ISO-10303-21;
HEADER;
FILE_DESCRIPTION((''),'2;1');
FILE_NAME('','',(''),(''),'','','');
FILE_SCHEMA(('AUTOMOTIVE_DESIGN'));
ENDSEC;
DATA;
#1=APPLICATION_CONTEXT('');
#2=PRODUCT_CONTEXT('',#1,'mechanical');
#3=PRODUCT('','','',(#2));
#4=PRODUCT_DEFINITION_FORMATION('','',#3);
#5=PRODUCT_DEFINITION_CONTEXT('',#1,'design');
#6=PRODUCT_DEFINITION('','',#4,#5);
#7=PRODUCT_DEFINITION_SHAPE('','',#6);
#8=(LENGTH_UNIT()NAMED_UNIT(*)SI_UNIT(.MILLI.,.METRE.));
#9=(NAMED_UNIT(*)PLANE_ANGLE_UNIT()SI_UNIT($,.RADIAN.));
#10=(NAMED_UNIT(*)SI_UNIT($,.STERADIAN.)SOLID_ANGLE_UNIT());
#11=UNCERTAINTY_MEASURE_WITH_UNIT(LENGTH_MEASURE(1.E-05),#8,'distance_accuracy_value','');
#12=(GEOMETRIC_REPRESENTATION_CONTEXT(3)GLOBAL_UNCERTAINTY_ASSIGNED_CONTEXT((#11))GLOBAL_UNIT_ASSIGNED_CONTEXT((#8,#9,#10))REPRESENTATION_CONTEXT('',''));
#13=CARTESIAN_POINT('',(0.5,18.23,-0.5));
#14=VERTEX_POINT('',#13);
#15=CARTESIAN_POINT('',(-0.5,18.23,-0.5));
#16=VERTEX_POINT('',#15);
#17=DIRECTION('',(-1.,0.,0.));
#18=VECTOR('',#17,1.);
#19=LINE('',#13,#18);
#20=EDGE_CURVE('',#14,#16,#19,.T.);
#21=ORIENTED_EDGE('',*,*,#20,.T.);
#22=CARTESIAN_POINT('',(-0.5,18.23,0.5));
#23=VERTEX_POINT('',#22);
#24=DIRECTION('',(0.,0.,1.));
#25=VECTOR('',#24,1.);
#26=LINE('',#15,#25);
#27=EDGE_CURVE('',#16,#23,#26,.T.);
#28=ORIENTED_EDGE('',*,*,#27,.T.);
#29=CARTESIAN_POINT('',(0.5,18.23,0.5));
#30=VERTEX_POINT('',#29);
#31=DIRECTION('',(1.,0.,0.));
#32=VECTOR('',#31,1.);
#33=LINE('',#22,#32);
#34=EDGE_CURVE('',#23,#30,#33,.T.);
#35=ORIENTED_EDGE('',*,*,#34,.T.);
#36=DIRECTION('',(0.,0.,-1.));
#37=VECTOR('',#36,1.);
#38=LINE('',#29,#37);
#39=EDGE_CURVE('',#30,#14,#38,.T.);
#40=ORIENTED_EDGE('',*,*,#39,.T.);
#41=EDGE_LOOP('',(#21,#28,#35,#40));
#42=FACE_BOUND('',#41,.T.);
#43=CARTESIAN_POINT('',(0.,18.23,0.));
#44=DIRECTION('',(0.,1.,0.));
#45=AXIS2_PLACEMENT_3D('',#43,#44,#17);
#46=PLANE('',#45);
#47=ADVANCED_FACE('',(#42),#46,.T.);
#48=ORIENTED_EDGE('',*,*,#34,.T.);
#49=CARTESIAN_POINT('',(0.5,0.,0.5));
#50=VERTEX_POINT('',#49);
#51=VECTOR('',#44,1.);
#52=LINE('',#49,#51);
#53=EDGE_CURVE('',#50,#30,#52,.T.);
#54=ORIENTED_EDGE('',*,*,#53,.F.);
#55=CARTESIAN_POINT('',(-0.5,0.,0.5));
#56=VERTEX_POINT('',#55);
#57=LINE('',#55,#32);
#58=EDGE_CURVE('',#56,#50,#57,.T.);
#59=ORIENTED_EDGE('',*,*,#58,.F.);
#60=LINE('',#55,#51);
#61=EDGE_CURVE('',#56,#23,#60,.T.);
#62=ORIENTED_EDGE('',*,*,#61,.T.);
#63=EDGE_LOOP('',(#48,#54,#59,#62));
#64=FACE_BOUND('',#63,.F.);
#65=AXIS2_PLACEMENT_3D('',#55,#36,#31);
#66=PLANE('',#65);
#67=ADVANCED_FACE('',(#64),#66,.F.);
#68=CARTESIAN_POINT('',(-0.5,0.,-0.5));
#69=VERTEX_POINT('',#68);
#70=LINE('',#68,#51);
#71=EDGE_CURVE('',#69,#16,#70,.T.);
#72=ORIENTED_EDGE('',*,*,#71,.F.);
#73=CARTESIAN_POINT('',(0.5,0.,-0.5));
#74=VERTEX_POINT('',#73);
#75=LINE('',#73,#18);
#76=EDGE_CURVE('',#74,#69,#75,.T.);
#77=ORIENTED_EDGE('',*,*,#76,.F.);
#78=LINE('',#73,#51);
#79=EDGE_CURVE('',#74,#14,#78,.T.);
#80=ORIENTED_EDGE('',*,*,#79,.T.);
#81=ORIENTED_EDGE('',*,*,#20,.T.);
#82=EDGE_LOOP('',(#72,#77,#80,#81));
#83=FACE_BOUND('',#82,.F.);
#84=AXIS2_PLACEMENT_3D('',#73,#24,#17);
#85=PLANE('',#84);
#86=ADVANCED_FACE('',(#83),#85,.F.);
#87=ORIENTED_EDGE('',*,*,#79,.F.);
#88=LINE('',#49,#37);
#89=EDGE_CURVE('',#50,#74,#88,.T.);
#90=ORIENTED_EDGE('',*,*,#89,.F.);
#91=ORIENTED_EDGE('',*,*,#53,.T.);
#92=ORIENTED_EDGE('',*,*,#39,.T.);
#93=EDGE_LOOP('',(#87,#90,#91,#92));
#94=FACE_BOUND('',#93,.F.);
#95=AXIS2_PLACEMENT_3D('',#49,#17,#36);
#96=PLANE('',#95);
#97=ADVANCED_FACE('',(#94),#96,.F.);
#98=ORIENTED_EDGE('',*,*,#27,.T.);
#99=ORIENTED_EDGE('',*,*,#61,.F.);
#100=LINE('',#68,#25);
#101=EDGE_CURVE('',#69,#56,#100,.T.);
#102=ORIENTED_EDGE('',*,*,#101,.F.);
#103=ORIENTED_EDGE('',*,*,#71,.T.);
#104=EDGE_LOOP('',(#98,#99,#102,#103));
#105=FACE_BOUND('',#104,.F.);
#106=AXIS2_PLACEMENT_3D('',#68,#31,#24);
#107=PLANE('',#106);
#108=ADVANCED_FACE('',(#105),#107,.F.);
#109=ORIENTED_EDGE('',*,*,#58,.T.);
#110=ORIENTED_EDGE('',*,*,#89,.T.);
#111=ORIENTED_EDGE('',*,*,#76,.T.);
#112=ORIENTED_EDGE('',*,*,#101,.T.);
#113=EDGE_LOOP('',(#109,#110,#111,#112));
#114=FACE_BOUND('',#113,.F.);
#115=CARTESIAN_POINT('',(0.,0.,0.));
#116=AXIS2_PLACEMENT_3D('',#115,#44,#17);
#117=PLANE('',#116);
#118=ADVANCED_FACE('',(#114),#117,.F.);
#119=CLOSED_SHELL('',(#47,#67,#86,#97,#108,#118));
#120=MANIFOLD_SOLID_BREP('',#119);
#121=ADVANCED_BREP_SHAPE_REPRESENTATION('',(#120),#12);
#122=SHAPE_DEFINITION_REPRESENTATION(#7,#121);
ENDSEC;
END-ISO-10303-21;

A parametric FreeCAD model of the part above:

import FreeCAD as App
import Part
import Sketcher
from FreeCAD import Vector
Q = App.Units.Quantity


def add_polygon(sketch, points):
    """Adds a closed chain of lines whose ends are joined by coincident constraints."""
    first, n = sketch.GeometryCount, len(points)
    for a, b in zip(points, points[1:] + points[:1]):
        sketch.addGeometry(Part.LineSegment(App.Vector(*a, 0), App.Vector(*b, 0)), False)
    for i in range(n):
        sketch.addConstraint(Sketcher.Constraint("Coincident", first + i, 2, first + (i + 1) % n, 1))

doc = App.newDocument("Part")
params = doc.addObject("Spreadsheet::Sheet", "Params")
for row, (alias, value) in enumerate([
    ("sketch1_width", "1 mm"),
    ("pad1_length", "18.23 mm"),
], start=1):
    params.set(f"A{row}", alias)
    params.set(f"B{row}", "=" + value)
    params.setAlias(f"B{row}", alias)

body = doc.addObject("PartDesign::Body", "Body")

sketch1 = body.newObject("Sketcher::SketchObject", "Sketch")
sketch1.AttachmentSupport = (doc.getObject("XZ_Plane"), [""])
sketch1.MapMode = "FlatFace"
add_polygon(sketch1, [(-0.5, -0.5), (-0.5, 0.5), (0.5, 0.5), (0.5, -0.5)])
sketch1.addConstraint([
    Sketcher.Constraint("Vertical", 0),
    Sketcher.Constraint("Horizontal", 1),
    Sketcher.Constraint("Vertical", 2),
    Sketcher.Constraint("Horizontal", 3),
    Sketcher.Constraint("Symmetric", 0, 2, 2, 2, -1, 1),
    Sketcher.Constraint("Equal", 3, 0),
    Sketcher.Constraint("DistanceX", 1, 1, 1, 2, Q("1 mm")),
])
sketch1.setExpression("Constraints[10]", "Params.sketch1_width")
pad1 = body.newObject("PartDesign::Pad", "Pad")
pad1.Profile = sketch1
pad1.setExpression("Length", "Params.pad1_length")
pad1.Reversed = True

doc.recompute()
